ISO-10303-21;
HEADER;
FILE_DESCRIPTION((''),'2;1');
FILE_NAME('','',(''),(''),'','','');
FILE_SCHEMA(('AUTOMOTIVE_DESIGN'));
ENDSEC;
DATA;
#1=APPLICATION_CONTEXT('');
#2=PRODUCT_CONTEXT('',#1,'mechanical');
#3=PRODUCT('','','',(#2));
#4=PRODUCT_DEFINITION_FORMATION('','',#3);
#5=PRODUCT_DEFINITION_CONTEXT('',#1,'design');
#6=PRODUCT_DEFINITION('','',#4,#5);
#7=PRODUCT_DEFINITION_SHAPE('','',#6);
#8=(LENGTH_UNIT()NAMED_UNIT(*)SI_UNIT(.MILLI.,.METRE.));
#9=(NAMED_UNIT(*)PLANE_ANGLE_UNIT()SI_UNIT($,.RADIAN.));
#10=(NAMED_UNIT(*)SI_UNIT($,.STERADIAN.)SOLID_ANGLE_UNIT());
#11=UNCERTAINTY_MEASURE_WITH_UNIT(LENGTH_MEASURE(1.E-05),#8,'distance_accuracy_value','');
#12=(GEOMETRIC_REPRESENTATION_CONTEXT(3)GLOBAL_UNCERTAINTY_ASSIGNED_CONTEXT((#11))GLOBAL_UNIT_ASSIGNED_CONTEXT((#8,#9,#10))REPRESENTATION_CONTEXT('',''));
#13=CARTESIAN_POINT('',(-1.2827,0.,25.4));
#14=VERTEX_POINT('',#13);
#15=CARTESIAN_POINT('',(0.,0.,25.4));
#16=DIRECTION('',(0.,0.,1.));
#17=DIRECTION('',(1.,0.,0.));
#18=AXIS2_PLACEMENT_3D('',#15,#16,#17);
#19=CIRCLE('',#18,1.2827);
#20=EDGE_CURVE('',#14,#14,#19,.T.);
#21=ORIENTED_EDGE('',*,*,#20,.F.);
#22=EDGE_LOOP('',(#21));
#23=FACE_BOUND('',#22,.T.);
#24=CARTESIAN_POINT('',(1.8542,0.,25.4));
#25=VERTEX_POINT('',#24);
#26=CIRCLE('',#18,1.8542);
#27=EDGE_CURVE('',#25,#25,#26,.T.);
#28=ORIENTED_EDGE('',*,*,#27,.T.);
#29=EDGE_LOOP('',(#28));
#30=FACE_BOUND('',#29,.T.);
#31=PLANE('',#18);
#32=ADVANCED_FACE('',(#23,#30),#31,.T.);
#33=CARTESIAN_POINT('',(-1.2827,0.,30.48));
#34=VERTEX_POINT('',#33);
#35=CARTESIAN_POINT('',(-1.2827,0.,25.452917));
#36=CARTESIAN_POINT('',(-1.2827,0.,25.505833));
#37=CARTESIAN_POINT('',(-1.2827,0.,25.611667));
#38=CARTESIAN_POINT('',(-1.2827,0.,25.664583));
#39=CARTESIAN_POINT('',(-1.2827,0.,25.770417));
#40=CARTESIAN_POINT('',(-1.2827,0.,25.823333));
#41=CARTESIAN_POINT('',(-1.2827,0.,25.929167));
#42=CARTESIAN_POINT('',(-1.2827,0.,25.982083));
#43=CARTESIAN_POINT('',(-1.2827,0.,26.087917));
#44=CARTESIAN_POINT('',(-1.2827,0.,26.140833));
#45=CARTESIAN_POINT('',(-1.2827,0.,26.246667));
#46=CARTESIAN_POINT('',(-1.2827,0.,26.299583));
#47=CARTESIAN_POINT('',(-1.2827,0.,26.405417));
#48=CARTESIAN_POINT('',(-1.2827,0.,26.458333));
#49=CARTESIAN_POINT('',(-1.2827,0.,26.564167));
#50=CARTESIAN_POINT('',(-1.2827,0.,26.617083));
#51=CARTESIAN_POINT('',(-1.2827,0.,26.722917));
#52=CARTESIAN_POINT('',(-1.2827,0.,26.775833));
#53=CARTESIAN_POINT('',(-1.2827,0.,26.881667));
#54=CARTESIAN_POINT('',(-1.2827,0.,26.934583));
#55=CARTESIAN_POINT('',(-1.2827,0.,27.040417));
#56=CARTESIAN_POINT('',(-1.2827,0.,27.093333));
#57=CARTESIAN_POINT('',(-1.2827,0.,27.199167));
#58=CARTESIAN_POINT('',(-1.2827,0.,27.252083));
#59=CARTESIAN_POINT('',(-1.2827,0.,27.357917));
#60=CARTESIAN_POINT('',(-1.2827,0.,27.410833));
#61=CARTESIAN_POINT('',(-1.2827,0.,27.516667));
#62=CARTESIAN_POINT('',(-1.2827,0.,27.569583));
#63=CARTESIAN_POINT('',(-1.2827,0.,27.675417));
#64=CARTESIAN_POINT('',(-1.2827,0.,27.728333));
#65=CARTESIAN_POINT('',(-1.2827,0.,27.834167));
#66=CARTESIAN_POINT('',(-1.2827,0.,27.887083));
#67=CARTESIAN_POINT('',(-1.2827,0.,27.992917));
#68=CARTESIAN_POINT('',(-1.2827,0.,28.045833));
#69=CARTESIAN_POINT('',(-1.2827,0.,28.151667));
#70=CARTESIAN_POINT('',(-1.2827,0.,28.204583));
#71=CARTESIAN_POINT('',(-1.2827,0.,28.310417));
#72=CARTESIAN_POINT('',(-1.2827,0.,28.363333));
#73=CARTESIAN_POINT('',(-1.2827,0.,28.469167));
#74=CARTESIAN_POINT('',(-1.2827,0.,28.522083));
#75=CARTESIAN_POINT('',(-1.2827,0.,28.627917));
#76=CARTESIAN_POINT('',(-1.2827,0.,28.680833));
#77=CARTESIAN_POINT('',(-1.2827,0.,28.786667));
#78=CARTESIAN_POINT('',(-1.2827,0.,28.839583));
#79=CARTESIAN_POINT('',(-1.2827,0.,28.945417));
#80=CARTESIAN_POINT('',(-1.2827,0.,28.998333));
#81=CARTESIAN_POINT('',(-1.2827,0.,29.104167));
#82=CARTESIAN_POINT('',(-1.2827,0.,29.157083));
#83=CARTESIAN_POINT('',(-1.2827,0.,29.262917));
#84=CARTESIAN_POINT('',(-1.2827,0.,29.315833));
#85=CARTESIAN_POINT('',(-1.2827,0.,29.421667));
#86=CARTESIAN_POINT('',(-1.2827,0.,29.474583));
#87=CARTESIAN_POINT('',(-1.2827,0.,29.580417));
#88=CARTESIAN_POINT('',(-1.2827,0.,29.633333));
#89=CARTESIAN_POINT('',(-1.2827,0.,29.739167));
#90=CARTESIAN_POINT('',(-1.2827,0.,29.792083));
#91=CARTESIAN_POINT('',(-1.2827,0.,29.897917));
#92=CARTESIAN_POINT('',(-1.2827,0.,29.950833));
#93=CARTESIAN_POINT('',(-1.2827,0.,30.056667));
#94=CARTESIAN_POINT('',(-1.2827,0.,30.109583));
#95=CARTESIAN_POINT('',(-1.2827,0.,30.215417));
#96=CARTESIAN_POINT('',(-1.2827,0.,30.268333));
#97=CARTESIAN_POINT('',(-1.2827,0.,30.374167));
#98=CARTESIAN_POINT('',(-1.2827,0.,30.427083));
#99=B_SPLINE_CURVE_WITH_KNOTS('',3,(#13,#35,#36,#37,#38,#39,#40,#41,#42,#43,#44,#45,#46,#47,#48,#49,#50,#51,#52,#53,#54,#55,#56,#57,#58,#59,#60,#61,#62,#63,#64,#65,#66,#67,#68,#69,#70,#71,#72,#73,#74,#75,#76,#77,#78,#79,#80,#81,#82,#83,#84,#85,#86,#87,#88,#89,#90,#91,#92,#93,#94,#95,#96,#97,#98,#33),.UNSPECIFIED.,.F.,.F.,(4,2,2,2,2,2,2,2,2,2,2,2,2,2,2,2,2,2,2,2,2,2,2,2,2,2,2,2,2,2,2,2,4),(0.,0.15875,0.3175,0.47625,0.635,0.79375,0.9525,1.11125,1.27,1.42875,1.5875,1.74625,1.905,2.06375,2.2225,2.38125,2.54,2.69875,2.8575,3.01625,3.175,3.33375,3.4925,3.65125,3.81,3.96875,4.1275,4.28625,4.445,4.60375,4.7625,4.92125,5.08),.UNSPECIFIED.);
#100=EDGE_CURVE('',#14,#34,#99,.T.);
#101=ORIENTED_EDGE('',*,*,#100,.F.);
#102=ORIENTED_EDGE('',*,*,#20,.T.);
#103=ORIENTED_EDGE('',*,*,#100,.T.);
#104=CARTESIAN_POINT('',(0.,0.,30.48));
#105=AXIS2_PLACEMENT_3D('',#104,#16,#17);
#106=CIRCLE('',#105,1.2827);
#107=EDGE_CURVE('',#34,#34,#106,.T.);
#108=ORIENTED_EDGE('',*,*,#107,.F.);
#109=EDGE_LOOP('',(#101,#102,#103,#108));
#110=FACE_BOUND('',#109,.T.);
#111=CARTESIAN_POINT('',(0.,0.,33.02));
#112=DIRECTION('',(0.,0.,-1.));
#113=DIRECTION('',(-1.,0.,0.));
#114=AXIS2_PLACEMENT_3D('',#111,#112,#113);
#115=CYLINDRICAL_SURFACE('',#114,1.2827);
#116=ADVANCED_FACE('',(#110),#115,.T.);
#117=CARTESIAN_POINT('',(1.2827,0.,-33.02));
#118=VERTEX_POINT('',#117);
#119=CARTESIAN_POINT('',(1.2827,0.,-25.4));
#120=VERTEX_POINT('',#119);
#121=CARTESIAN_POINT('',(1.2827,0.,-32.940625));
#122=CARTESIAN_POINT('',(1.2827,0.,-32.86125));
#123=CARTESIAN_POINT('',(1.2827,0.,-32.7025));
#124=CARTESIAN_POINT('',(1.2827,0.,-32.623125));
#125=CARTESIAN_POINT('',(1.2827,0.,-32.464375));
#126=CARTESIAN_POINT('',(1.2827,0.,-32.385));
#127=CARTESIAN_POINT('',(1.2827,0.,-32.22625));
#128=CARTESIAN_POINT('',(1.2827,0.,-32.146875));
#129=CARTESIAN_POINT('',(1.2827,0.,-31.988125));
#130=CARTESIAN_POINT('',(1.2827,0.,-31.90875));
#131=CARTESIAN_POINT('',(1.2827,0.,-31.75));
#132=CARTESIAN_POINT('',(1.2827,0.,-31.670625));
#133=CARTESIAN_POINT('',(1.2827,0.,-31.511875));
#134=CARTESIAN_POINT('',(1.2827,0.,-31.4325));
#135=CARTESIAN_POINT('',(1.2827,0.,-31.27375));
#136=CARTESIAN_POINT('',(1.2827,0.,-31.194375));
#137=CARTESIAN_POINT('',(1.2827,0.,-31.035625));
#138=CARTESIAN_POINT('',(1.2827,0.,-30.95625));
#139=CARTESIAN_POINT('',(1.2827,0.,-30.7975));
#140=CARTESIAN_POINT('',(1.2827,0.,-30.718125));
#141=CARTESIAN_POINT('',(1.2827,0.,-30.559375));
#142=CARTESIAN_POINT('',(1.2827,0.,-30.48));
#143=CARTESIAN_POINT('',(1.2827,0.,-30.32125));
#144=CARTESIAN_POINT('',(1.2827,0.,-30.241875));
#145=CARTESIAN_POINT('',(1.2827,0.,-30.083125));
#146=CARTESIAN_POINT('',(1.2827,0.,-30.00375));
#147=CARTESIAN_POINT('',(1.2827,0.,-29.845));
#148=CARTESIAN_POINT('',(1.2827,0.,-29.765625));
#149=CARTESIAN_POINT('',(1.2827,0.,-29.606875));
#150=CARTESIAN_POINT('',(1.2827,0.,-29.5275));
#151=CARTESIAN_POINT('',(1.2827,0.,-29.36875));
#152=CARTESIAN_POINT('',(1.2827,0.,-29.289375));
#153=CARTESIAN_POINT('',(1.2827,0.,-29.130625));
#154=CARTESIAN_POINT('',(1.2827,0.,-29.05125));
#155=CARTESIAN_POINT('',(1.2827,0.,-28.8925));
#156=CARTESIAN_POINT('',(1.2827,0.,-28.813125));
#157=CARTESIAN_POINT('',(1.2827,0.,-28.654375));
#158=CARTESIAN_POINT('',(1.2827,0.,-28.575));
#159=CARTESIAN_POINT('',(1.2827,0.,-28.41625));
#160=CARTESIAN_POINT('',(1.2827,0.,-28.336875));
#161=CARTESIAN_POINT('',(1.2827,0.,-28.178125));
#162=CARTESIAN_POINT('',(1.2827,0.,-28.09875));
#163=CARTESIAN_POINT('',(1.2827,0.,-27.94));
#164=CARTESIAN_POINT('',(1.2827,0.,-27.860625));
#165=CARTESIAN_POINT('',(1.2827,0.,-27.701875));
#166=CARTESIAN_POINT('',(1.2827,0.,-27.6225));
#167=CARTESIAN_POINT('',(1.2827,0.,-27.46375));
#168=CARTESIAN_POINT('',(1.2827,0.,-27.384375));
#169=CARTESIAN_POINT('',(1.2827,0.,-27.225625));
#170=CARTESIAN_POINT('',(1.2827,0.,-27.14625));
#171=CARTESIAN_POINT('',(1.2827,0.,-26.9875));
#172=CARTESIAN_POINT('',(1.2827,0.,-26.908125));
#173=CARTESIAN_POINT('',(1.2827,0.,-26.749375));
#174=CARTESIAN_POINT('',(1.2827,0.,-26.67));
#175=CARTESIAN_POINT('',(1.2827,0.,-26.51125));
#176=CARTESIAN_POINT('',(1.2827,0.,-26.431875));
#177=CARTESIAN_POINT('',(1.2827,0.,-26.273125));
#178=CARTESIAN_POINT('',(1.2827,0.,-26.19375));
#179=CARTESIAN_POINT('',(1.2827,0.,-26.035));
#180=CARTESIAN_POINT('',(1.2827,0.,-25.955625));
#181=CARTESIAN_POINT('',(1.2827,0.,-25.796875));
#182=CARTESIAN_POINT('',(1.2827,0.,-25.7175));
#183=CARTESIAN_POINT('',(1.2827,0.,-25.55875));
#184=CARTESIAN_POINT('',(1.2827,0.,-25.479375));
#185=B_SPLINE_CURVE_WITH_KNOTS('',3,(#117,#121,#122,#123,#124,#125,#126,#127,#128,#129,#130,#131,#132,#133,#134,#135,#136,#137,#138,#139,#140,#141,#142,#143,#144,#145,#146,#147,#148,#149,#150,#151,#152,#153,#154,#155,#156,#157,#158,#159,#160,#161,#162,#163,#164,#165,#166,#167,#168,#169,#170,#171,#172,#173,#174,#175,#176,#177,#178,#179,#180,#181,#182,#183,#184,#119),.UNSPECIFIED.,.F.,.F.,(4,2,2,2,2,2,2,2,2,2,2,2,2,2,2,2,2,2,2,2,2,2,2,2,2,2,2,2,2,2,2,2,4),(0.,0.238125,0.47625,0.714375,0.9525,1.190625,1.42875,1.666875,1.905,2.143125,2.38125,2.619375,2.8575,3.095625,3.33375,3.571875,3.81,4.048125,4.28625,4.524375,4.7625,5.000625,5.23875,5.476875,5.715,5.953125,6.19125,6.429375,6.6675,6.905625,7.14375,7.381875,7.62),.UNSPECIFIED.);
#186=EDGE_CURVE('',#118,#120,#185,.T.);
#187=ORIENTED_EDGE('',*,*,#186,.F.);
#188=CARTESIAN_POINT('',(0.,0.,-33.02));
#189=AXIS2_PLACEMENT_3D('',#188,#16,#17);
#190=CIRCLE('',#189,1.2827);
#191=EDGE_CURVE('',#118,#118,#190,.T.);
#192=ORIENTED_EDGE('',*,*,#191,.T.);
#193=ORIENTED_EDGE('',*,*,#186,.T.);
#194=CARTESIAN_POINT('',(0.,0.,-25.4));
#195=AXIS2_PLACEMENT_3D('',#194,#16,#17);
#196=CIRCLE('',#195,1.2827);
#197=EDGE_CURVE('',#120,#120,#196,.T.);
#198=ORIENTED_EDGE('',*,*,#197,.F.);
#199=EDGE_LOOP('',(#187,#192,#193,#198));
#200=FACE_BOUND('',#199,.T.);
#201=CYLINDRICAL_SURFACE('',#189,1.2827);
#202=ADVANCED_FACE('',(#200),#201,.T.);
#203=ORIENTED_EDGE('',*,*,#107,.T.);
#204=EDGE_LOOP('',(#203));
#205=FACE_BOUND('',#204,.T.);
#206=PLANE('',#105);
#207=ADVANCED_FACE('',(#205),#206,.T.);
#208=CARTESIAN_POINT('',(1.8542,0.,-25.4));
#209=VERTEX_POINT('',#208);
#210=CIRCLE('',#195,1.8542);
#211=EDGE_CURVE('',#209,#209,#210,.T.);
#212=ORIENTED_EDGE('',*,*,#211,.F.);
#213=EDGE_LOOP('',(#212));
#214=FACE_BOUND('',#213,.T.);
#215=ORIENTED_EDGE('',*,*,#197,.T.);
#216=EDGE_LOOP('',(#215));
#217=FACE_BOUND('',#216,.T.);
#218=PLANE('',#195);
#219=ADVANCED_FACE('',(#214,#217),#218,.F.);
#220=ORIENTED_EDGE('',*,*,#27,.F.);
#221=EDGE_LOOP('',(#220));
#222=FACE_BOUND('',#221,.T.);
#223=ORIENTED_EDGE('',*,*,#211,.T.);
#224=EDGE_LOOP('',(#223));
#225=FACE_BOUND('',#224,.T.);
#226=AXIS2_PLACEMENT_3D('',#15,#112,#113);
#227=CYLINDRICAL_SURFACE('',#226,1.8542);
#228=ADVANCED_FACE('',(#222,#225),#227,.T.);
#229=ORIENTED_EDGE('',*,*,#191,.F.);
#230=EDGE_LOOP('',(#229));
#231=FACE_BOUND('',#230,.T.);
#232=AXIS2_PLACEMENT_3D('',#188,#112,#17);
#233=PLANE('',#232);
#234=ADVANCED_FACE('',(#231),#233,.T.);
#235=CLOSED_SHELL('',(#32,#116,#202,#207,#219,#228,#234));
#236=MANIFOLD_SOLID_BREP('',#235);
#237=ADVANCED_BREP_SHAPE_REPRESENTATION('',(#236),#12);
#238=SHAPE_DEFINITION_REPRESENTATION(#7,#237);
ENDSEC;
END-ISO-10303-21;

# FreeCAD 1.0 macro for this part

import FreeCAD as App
import Part
import Sketcher
from FreeCAD import Vector
Q = App.Units.Quantity

doc = App.newDocument("Part")
body = doc.addObject("PartDesign::Body", "Body")

sketch1 = doc.addObject("Sketcher::SketchObject", "Sketch")
body.addObject(sketch1)
sketch1.AttachmentSupport = (doc.XY_Plane, [""])
sketch1.MapMode = "FlatFace"
sketch1.addGeometry(Part.Circle(Vector(0, 0, 0), Vector(0, 0, 1), 1.9), False)
sketch1.addConstraint([
    Sketcher.Constraint("Coincident", 0, 3, -1, 1),
    Sketcher.Constraint("Diameter", 0, Q("0.146 in")),
])
pad1 = doc.addObject("PartDesign::Pad", "Pad")
body.addObject(pad1)
pad1.Profile = sketch1
pad1.Length = Q("2 in")
pad1.Midplane = True

sketch2 = doc.addObject("Sketcher::SketchObject", "Sketch001")
body.addObject(sketch2)
sketch2.AttachmentSupport = (doc.XY_Plane, [""])
sketch2.MapMode = "FlatFace"
sketch2.AttachmentOffset = App.Placement(Vector(0, 0, 1 * 25.4), App.Rotation())
sketch2.addGeometry(Part.Circle(Vector(0, 0, 0), Vector(0, 0, 1), 1.3), False)
sketch2.addConstraint([
    Sketcher.Constraint("Coincident", 0, 3, -1, 1),
    Sketcher.Constraint("Diameter", 0, Q("0.101 in")),
])
pad2 = doc.addObject("PartDesign::Pad", "Pad001")
body.addObject(pad2)
pad2.Profile = sketch2
pad2.Length = Q("0.3 in")
doc.recompute()

mirrored = doc.addObject("PartDesign::Mirrored", "Mirrored")
body.addObject(mirrored)
mirrored.Originals = [pad2]
mirrored.MirrorPlane = (doc.XY_Plane, [""])
body.Tip = mirrored

sketch3 = doc.addObject("Sketcher::SketchObject", "Sketch002")
body.addObject(sketch3)
sketch3.AttachmentSupport = (doc.XY_Plane, [""])
sketch3.MapMode = "FlatFace"
sketch3.AttachmentOffset = App.Placement(Vector(0, 0, 1.3 * 25.4), App.Rotation())
sketch3.addGeometry(Part.Circle(Vector(0, 0, 0), Vector(0, 0, 1), 1.3), False)
sketch3.addConstraint([
    Sketcher.Constraint("Coincident", 0, 3, -1, 1),
    Sketcher.Constraint("Diameter", 0, Q("0.101 in")),
])
pocket1 = doc.addObject("PartDesign::Pocket", "Pocket")
body.addObject(pocket1)
pocket1.Profile = sketch3
pocket1.Length = Q("0.1 in")

doc.recompute()
